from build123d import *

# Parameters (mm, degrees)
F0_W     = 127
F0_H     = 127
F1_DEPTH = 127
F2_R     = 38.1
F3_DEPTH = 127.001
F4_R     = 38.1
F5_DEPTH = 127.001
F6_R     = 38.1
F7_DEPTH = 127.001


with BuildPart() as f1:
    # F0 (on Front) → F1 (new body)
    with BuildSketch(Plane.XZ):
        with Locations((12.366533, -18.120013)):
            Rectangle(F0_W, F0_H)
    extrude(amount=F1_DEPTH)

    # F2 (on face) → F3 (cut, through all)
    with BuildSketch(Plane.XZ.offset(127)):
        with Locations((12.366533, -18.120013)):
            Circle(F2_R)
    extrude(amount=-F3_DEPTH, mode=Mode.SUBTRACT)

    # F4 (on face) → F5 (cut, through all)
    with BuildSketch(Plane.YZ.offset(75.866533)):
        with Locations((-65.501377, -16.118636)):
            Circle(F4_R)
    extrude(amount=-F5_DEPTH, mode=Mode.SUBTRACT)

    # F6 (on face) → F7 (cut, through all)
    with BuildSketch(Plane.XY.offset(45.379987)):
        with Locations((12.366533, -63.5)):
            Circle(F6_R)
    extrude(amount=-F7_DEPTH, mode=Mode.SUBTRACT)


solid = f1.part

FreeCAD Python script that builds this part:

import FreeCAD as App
import Part
import Sketcher
from FreeCAD import Vector
Q = App.Units.Quantity

doc = App.newDocument("Part")
params = doc.addObject("Spreadsheet::Sheet", "Params")
for row, (alias, value) in enumerate([
    ("sketch1_width", "5 in"),
    ("pad1_length", "5 in"),
    ("sketch2_diameter", "3 in"),
    ("sketch3_diameter", "3 in"),
    ("sketch4_diameter", "3 in"),
], start=1):
    params.set(f"A{row}", alias)
    params.set(f"B{row}", "=" + value)
    params.setAlias(f"B{row}", alias)

body = doc.addObject("PartDesign::Body", "Body")

sketch1 = body.newObject("Sketcher::SketchObject", "Sketch")
sketch1.AttachmentSupport = (doc.getObject("XZ_Plane"), [""])
sketch1.MapMode = "FlatFace"
sketch1.addGeometry([
    Part.LineSegment(Vector(-51.133467, 45.379987, 0), Vector(-51.133467, -81.620013, 0)),
    Part.LineSegment(Vector(-51.133467, -81.620013, 0), Vector(75.866533, -81.620013, 0)),
    Part.LineSegment(Vector(75.866533, -81.620013, 0), Vector(75.866533, 45.379987, 0)),
    Part.LineSegment(Vector(75.866533, 45.379987, 0), Vector(-51.133467, 45.379987, 0)),
], False)
sketch1.addConstraint([
    Sketcher.Constraint("Coincident", 0, 2, 1, 1),
    Sketcher.Constraint("Coincident", 1, 2, 2, 1),
    Sketcher.Constraint("Coincident", 2, 2, 3, 1),
    Sketcher.Constraint("Coincident", 3, 2, 0, 1),
    Sketcher.Constraint("Vertical", 0),
    Sketcher.Constraint("Horizontal", 1),
    Sketcher.Constraint("Vertical", 2),
    Sketcher.Constraint("Horizontal", 3),
    Sketcher.Constraint("Equal", 3, 0),
    Sketcher.Constraint("DistanceX", 1, 1, 1, 2, Q("5 in")),
    Sketcher.Constraint("DistanceX", 0, 2, -1, 1, 51.133467),
    Sketcher.Constraint("DistanceY", 0, 2, -1, 1, 81.620013),
])
sketch1.setExpression("Constraints[9]", "Params.sketch1_width")
pad1 = body.newObject("PartDesign::Pad", "Pad")
pad1.Profile = sketch1
pad1.setExpression("Length", "Params.pad1_length")

sketch2 = body.newObject("Sketcher::SketchObject", "Sketch001")
sketch2.AttachmentSupport = (doc.getObject("XZ_Plane"), [""])
sketch2.MapMode = "FlatFace"
sketch2.AttachmentOffset = App.Placement(Vector(0, 0, 5 * 25.4), App.Rotation())
sketch2.addGeometry(Part.Circle(Vector(12.366533, -18.120013, 0), Vector(0, 0, 1), 38.1), False)
sketch2.addConstraint([
    Sketcher.Constraint("Diameter", 0, Q("3 in")),
    Sketcher.Constraint("DistanceX", -1, 1, 0, 3, 12.366533),
    Sketcher.Constraint("DistanceY", 0, 3, -1, 1, 18.120013),
])
sketch2.setExpression("Constraints[0]", "Params.sketch2_diameter")
pocket1 = body.newObject("PartDesign::Pocket", "Pocket")
pocket1.Profile = sketch2
pocket1.Type = "ThroughAll"

sketch3 = body.newObject("Sketcher::SketchObject", "Sketch002")
sketch3.AttachmentSupport = (doc.getObject("YZ_Plane"), [""])
sketch3.MapMode = "FlatFace"
sketch3.AttachmentOffset = App.Placement(Vector(0, 0, 75.866533), App.Rotation())
sketch3.addGeometry(Part.Circle(Vector(-65.501377, -16.118636, 0), Vector(0, 0, 1), 38.1), False)
sketch3.addConstraint([
    Sketcher.Constraint("Diameter", 0, Q("3 in")),
    Sketcher.Constraint("DistanceX", 0, 3, -1, 1, 65.501377),
    Sketcher.Constraint("DistanceY", 0, 3, -1, 1, 16.118636),
])
sketch3.setExpression("Constraints[0]", "Params.sketch3_diameter")
pocket2 = body.newObject("PartDesign::Pocket", "Pocket001")
pocket2.Profile = sketch3
pocket2.Type = "ThroughAll"

sketch4 = body.newObject("Sketcher::SketchObject", "Sketch003")
sketch4.AttachmentSupport = (doc.getObject("XY_Plane"), [""])
sketch4.MapMode = "FlatFace"
sketch4.AttachmentOffset = App.Placement(Vector(0, 0, 45.379987), App.Rotation())
sketch4.addGeometry(Part.Circle(Vector(12.366533, -63.5, 0), Vector(0, 0, 1), 38.1), False)
sketch4.addConstraint([
    Sketcher.Constraint("Diameter", 0, Q("3 in")),
    Sketcher.Constraint("DistanceY", 0, 3, -1, 1, Q("2.5 in")),
    Sketcher.Constraint("DistanceX", -1, 1, 0, 3, 12.366533),
])
sketch4.setExpression("Constraints[0]", "Params.sketch4_diameter")
pocket3 = body.newObject("PartDesign::Pocket", "Pocket002")
pocket3.Profile = sketch4
pocket3.Type = "ThroughAll"

doc.recompute()
